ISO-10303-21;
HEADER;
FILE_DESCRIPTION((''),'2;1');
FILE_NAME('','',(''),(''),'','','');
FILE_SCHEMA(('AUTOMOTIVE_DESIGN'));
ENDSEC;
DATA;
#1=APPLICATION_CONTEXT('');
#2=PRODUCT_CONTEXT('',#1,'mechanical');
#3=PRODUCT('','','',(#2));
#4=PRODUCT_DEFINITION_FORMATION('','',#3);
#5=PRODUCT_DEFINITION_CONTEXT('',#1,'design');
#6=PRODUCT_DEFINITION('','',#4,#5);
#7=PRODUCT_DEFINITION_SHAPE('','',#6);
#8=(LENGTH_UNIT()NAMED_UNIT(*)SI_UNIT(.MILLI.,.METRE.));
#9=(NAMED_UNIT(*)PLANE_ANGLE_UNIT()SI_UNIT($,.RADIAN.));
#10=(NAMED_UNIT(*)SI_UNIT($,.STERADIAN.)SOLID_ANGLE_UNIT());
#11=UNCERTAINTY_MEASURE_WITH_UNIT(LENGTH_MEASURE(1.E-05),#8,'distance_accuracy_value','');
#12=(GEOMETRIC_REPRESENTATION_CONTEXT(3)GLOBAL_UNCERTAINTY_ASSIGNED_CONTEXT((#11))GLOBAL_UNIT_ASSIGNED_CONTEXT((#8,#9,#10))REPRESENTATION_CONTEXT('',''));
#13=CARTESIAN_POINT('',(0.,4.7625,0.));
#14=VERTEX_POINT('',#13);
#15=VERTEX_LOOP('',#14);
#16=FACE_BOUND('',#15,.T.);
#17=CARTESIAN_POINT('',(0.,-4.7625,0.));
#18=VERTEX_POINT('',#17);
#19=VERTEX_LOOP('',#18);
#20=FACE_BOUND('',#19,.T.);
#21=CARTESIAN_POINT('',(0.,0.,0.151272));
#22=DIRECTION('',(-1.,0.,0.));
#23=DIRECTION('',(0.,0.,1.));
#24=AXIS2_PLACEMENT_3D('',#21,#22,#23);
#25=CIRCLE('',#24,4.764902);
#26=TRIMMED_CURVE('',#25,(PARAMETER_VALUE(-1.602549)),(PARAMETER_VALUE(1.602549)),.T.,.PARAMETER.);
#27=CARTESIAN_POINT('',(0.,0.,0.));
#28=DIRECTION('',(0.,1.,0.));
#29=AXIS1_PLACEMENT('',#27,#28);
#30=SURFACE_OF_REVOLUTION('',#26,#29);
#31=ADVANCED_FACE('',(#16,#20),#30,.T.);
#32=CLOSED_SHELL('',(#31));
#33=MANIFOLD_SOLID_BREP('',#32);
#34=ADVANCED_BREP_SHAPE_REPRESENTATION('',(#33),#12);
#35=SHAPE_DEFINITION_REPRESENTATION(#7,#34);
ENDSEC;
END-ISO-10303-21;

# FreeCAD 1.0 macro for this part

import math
import FreeCAD as App
import Part
import Sketcher
Q = App.Units.Quantity

doc = App.newDocument("Part")
body = doc.addObject("PartDesign::Body", "Body")

# Sketch on XY plane
sketch1 = body.newObject("Sketcher::SketchObject", "Sketch")
sketch1.AttachmentSupport = (doc.getObject("XY_Plane"), [""])
sketch1.MapMode = "FlatFace"
sketch1.addGeometry(Part.LineSegment(App.Vector(0, 4.8, 0), App.Vector(0, -4.8, 0)), False)
sketch1.addGeometry(Part.ArcOfCircle(Part.Circle(App.Vector(0.2, 0, 0), App.Vector(0, 0, 1), 4.8), math.radians(-92), math.radians(92)), False)
sketch1.addConstraint(Sketcher.Constraint("Coincident", 0, 1, 1, 2))
sketch1.addConstraint(Sketcher.Constraint("Coincident", 1, 1, 0, 2))
sketch1.addConstraint(Sketcher.Constraint("Vertical", 0))
sketch1.addConstraint(Sketcher.Constraint("Symmetric", 0, 1, 1, 1, -1, 1))
sketch1.addConstraint(Sketcher.Constraint("DistanceY", 0, 2, 0, 1, Q("0.375 in")))
sketch1.addConstraint(Sketcher.Constraint("Radius", 1, 4.764902))
revolution = body.newObject("PartDesign::Revolution", "Revolution")
revolution.Profile = sketch1
revolution.ReferenceAxis = (sketch1, ["V_Axis"])
revolution.Angle = 360

doc.recompute()
